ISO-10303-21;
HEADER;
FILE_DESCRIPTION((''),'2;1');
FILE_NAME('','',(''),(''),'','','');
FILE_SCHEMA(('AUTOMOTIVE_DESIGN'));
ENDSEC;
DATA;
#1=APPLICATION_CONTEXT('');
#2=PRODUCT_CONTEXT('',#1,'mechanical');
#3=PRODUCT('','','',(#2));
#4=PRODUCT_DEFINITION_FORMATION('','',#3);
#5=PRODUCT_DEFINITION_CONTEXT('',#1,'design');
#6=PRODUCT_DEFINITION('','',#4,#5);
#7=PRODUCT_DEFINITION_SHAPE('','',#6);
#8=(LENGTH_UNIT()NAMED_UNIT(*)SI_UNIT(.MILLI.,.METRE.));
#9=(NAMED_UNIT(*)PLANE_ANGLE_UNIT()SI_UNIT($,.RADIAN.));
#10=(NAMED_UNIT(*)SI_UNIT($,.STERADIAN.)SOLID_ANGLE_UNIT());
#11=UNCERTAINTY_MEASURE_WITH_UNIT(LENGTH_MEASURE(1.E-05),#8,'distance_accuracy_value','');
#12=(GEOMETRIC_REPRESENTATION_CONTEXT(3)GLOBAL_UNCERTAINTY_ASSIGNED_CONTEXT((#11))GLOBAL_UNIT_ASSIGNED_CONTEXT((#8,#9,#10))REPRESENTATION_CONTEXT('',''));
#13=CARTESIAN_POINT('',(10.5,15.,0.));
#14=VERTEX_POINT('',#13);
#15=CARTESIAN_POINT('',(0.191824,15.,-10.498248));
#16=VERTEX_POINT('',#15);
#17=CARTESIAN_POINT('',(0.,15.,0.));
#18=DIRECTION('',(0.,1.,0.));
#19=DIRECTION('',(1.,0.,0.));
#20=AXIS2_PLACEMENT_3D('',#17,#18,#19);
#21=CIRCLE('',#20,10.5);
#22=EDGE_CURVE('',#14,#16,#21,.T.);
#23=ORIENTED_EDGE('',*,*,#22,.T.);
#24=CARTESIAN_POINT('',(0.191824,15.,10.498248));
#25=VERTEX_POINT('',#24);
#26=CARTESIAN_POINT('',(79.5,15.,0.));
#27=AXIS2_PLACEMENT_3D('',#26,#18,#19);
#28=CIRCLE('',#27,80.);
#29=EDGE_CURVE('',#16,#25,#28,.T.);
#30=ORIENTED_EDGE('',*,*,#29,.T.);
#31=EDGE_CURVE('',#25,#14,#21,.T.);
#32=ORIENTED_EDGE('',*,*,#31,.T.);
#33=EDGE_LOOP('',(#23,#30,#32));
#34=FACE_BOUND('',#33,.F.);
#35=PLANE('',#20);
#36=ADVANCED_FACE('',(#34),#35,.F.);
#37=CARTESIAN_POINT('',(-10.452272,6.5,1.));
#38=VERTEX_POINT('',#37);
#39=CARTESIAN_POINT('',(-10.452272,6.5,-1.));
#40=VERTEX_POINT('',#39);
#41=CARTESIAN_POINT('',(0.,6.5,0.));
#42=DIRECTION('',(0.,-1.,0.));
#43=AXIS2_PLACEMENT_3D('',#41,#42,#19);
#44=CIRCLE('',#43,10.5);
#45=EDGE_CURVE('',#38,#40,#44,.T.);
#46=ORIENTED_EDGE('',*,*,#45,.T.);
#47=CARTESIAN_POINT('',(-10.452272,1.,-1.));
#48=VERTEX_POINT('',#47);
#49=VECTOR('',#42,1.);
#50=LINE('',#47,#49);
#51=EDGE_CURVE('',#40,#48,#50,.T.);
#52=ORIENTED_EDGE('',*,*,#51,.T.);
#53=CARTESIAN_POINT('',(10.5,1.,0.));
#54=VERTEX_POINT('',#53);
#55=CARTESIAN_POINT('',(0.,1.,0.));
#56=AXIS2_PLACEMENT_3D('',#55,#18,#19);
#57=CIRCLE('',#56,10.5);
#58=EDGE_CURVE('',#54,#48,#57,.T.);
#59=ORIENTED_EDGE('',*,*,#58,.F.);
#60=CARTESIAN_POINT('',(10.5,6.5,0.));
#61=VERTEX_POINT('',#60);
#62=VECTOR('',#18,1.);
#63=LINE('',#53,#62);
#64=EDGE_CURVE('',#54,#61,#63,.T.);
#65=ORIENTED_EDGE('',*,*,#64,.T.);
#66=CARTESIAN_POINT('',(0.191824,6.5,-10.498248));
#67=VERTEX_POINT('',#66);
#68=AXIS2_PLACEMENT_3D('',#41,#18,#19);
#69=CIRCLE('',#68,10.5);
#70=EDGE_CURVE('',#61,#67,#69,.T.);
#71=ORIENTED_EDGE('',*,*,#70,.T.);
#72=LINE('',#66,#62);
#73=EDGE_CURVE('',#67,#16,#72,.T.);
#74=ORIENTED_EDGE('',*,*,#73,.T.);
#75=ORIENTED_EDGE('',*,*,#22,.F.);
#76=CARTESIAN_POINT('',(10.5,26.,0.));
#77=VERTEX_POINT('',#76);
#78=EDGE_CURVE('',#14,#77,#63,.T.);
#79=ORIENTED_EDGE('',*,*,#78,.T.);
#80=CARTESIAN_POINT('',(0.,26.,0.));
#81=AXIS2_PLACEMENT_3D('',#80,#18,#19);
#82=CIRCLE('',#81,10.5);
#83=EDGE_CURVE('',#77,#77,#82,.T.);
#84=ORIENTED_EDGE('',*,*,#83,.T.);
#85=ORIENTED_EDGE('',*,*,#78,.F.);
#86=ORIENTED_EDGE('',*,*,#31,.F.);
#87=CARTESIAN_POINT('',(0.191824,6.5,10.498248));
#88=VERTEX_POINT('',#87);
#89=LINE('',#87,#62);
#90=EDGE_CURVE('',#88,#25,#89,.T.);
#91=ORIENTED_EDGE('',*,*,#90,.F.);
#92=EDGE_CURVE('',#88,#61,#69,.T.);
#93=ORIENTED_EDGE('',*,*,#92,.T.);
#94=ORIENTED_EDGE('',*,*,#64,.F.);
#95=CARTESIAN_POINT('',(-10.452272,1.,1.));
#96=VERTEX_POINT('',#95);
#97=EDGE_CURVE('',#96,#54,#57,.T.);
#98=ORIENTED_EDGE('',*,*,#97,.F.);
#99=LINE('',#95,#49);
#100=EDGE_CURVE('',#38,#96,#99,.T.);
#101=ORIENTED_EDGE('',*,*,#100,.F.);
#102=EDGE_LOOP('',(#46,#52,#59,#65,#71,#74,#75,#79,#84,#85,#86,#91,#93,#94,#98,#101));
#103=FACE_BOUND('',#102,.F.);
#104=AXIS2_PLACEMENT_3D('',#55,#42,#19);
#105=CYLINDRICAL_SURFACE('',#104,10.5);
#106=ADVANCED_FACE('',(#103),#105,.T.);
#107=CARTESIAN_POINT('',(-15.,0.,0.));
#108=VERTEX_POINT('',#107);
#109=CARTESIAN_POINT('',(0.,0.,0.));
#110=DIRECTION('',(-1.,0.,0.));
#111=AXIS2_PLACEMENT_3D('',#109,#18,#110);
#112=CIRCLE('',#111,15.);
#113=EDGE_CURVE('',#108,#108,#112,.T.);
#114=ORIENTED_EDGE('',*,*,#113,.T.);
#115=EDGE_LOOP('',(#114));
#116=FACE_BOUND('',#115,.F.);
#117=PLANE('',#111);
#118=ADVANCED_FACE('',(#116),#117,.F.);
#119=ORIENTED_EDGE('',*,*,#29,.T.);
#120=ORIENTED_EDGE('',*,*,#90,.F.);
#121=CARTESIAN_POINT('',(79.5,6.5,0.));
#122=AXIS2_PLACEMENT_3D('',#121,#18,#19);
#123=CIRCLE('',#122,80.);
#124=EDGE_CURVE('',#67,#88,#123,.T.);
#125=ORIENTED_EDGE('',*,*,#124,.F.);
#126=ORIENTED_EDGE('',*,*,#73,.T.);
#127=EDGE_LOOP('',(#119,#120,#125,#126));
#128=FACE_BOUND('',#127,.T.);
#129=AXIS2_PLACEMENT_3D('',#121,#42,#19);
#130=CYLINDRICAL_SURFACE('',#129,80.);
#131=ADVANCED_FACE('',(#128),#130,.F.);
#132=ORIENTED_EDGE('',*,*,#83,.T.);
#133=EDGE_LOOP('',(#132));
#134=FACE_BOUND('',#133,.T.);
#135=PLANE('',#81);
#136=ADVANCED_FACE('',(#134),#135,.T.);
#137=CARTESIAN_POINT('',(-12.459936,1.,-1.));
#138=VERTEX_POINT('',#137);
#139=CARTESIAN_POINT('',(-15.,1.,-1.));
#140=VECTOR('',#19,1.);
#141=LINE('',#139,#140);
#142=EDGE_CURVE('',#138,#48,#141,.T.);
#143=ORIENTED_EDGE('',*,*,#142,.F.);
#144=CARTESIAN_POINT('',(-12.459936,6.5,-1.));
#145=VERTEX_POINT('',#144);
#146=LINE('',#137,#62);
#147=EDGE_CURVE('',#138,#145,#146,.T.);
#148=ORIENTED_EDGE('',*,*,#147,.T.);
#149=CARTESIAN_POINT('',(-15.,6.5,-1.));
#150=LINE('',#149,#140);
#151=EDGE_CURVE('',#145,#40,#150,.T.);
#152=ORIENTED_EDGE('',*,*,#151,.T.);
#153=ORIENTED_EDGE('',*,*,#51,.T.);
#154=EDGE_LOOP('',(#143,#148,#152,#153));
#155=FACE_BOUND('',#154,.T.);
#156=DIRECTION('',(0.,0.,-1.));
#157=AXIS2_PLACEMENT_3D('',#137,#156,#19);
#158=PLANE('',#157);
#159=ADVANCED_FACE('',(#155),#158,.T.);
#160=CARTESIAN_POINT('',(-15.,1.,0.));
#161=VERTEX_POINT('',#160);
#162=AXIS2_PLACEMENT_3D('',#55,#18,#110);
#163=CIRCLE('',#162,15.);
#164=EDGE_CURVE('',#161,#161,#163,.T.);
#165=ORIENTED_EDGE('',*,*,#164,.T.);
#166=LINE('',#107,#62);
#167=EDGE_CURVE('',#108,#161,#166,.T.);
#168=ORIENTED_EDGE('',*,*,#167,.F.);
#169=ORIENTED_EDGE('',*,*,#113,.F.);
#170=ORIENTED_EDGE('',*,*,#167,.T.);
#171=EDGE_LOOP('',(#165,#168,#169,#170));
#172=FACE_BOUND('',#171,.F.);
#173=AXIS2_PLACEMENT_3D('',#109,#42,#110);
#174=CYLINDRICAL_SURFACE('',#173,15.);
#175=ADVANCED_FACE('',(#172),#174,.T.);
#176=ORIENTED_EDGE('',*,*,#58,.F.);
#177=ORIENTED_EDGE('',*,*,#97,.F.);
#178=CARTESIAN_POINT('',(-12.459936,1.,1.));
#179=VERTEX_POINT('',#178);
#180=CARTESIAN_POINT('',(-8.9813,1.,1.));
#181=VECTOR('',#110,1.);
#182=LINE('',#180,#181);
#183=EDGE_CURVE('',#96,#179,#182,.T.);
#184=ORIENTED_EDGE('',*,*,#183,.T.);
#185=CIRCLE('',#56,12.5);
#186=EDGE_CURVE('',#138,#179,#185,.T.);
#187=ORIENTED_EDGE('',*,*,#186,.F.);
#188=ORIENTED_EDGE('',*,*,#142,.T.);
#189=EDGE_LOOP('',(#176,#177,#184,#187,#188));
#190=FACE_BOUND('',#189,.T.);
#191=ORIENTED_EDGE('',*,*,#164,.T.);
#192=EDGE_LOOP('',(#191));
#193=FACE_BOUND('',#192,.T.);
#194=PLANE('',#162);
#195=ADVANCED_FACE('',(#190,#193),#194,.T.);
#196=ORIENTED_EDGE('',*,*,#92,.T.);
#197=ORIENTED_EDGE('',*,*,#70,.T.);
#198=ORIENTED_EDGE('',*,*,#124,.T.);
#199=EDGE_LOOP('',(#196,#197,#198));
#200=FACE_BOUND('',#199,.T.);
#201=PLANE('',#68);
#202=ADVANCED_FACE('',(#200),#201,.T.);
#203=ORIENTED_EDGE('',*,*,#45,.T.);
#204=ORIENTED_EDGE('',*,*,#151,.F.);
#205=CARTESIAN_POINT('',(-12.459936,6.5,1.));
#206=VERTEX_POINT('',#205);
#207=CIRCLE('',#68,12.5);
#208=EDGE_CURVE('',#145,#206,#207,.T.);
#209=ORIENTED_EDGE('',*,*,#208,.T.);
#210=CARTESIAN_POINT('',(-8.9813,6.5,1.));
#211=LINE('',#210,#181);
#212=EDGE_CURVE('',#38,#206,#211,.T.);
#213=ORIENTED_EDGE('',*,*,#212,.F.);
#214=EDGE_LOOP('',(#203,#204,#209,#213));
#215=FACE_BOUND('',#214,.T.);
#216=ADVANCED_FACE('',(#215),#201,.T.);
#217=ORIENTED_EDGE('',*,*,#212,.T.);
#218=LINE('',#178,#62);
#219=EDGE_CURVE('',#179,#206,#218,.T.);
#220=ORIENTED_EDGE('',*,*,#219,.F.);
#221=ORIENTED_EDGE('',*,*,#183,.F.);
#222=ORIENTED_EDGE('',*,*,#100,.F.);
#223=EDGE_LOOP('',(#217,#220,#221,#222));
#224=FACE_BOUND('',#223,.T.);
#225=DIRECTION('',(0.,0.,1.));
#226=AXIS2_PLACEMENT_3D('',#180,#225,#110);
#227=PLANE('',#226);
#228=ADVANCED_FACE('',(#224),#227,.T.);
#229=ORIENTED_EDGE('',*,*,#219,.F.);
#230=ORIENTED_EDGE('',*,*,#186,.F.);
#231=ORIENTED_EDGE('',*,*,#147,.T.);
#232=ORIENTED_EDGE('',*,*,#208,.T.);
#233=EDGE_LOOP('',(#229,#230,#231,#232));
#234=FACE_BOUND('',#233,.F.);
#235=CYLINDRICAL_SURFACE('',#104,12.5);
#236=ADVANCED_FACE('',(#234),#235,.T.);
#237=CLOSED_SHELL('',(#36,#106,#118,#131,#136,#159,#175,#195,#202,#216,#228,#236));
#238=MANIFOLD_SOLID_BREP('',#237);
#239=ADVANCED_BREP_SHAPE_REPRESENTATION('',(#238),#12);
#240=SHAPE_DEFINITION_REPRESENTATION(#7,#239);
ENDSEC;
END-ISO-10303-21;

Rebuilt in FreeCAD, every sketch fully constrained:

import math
import FreeCAD as App
import Part
import Sketcher

V = App.Vector

doc = App.newDocument("Part")
body = doc.addObject("PartDesign::Body", "Body")

sketch1 = body.newObject("Sketcher::SketchObject", "Sketch")
sketch1.AttachmentSupport = (doc.getObject("XZ_Plane"), [""])
sketch1.MapMode = "FlatFace"
sketch1.addGeometry(Part.Circle(V(0, 0, 0), V(0, 0, 1), 15), False)
sketch1.addConstraint([
    Sketcher.Constraint("Coincident", 0, 3, -1, 1),
    Sketcher.Constraint("Diameter", 0, 30.0),
])
pad1 = body.newObject("PartDesign::Pad", "Pad")
pad1.Profile = sketch1
pad1.Length = 1
pad1.Reversed = True

sketch2 = body.newObject("Sketcher::SketchObject", "Sketch001")
sketch2.AttachmentSupport = (doc.getObject("XZ_Plane"), [""])
sketch2.MapMode = "FlatFace"
sketch2.AttachmentOffset = App.Placement(V(0, 0, -1), App.Rotation())
sketch2.addGeometry(Part.Circle(V(0, 0, 0), V(0, 0, 1), 10), False)
sketch2.addConstraint([
    Sketcher.Constraint("Coincident", 0, 3, -1, 1),
    Sketcher.Constraint("Diameter", 0, 21.0),
])
pad2 = body.newObject("PartDesign::Pad", "Pad001")
pad2.Profile = sketch2
pad2.Length = 25
pad2.Reversed = True

sketch3 = body.newObject("Sketcher::SketchObject", "Sketch002")
sketch3.AttachmentSupport = (doc.getObject("XZ_Plane"), [""])
sketch3.MapMode = "FlatFace"
sketch3.AttachmentOffset = App.Placement(V(0, 0, -6.5), App.Rotation())
sketch3.addGeometry([
    Part.ArcOfCircle(Part.Circle(V(0, 0, 0), V(0, 0, 1), 10), math.radians(-89), math.radians(89)),
    Part.ArcOfCircle(Part.Circle(V(80, 0, 0), V(0, 0, 1), 80), math.radians(172.46), math.radians(187.54)),
], False)
sketch3.addConstraint([
    Sketcher.Constraint("Coincident", 0, 1, 1, 2),
    Sketcher.Constraint("Coincident", 1, 1, 0, 2),
    Sketcher.Constraint("Coincident", 0, 3, -1, 1),
    Sketcher.Constraint("PointOnObject", 1, 3, -1),
    Sketcher.Constraint("Radius", 1, 80.0),
    Sketcher.Constraint("DistanceX", -1, 1, 1, 3, 79.5),
    Sketcher.Constraint("Radius", 0, 10.5),
])
pocket1 = body.newObject("PartDesign::Pocket", "Pocket")
pocket1.Profile = sketch3
pocket1.Length = 8.5

sketch4 = body.newObject("Sketcher::SketchObject", "Sketch003")
sketch4.AttachmentSupport = (doc.getObject("XZ_Plane"), [""])
sketch4.MapMode = "FlatFace"
sketch4.AttachmentOffset = App.Placement(V(0, 0, -1), App.Rotation())
sketch4.addGeometry([
    Part.LineSegment(V(-9, -1, 0), V(-12.5, -1, 0)),
    Part.ArcOfCircle(Part.Circle(V(0, 0, 0), V(0, 0, 1), 12.5), math.radians(175.41), math.radians(184.59)),
    Part.LineSegment(V(-12.5, 1, 0), V(-9, 1, 0)),
    Part.LineSegment(V(-9, 1, 0), V(-9, -1, 0)),
], False)
sketch4.addConstraint([
    Sketcher.Constraint("Coincident", 0, 2, 1, 2),
    Sketcher.Constraint("Coincident", 1, 1, 2, 1),
    Sketcher.Constraint("Coincident", 2, 2, 3, 1),
    Sketcher.Constraint("Coincident", 3, 2, 0, 1),
    Sketcher.Constraint("Horizontal", 0),
    Sketcher.Constraint("Horizontal", 2),
    Sketcher.Constraint("Vertical", 3),
    Sketcher.Constraint("Coincident", 1, 3, -1, 1),
    Sketcher.Constraint("Vertical", 0, 2, 1, 1),
    Sketcher.Constraint("Radius", 1, 12.5),
    Sketcher.Constraint("DistanceY", 3, 2, 3, 1, 2.0),
    Sketcher.Constraint("DistanceX", 0, 2, 0, 1, 3.4786),
])
pad3 = body.newObject("PartDesign::Pad", "Pad002")
pad3.Profile = sketch4
pad3.Length = 5.5
pad3.Reversed = True

doc.recompute()
